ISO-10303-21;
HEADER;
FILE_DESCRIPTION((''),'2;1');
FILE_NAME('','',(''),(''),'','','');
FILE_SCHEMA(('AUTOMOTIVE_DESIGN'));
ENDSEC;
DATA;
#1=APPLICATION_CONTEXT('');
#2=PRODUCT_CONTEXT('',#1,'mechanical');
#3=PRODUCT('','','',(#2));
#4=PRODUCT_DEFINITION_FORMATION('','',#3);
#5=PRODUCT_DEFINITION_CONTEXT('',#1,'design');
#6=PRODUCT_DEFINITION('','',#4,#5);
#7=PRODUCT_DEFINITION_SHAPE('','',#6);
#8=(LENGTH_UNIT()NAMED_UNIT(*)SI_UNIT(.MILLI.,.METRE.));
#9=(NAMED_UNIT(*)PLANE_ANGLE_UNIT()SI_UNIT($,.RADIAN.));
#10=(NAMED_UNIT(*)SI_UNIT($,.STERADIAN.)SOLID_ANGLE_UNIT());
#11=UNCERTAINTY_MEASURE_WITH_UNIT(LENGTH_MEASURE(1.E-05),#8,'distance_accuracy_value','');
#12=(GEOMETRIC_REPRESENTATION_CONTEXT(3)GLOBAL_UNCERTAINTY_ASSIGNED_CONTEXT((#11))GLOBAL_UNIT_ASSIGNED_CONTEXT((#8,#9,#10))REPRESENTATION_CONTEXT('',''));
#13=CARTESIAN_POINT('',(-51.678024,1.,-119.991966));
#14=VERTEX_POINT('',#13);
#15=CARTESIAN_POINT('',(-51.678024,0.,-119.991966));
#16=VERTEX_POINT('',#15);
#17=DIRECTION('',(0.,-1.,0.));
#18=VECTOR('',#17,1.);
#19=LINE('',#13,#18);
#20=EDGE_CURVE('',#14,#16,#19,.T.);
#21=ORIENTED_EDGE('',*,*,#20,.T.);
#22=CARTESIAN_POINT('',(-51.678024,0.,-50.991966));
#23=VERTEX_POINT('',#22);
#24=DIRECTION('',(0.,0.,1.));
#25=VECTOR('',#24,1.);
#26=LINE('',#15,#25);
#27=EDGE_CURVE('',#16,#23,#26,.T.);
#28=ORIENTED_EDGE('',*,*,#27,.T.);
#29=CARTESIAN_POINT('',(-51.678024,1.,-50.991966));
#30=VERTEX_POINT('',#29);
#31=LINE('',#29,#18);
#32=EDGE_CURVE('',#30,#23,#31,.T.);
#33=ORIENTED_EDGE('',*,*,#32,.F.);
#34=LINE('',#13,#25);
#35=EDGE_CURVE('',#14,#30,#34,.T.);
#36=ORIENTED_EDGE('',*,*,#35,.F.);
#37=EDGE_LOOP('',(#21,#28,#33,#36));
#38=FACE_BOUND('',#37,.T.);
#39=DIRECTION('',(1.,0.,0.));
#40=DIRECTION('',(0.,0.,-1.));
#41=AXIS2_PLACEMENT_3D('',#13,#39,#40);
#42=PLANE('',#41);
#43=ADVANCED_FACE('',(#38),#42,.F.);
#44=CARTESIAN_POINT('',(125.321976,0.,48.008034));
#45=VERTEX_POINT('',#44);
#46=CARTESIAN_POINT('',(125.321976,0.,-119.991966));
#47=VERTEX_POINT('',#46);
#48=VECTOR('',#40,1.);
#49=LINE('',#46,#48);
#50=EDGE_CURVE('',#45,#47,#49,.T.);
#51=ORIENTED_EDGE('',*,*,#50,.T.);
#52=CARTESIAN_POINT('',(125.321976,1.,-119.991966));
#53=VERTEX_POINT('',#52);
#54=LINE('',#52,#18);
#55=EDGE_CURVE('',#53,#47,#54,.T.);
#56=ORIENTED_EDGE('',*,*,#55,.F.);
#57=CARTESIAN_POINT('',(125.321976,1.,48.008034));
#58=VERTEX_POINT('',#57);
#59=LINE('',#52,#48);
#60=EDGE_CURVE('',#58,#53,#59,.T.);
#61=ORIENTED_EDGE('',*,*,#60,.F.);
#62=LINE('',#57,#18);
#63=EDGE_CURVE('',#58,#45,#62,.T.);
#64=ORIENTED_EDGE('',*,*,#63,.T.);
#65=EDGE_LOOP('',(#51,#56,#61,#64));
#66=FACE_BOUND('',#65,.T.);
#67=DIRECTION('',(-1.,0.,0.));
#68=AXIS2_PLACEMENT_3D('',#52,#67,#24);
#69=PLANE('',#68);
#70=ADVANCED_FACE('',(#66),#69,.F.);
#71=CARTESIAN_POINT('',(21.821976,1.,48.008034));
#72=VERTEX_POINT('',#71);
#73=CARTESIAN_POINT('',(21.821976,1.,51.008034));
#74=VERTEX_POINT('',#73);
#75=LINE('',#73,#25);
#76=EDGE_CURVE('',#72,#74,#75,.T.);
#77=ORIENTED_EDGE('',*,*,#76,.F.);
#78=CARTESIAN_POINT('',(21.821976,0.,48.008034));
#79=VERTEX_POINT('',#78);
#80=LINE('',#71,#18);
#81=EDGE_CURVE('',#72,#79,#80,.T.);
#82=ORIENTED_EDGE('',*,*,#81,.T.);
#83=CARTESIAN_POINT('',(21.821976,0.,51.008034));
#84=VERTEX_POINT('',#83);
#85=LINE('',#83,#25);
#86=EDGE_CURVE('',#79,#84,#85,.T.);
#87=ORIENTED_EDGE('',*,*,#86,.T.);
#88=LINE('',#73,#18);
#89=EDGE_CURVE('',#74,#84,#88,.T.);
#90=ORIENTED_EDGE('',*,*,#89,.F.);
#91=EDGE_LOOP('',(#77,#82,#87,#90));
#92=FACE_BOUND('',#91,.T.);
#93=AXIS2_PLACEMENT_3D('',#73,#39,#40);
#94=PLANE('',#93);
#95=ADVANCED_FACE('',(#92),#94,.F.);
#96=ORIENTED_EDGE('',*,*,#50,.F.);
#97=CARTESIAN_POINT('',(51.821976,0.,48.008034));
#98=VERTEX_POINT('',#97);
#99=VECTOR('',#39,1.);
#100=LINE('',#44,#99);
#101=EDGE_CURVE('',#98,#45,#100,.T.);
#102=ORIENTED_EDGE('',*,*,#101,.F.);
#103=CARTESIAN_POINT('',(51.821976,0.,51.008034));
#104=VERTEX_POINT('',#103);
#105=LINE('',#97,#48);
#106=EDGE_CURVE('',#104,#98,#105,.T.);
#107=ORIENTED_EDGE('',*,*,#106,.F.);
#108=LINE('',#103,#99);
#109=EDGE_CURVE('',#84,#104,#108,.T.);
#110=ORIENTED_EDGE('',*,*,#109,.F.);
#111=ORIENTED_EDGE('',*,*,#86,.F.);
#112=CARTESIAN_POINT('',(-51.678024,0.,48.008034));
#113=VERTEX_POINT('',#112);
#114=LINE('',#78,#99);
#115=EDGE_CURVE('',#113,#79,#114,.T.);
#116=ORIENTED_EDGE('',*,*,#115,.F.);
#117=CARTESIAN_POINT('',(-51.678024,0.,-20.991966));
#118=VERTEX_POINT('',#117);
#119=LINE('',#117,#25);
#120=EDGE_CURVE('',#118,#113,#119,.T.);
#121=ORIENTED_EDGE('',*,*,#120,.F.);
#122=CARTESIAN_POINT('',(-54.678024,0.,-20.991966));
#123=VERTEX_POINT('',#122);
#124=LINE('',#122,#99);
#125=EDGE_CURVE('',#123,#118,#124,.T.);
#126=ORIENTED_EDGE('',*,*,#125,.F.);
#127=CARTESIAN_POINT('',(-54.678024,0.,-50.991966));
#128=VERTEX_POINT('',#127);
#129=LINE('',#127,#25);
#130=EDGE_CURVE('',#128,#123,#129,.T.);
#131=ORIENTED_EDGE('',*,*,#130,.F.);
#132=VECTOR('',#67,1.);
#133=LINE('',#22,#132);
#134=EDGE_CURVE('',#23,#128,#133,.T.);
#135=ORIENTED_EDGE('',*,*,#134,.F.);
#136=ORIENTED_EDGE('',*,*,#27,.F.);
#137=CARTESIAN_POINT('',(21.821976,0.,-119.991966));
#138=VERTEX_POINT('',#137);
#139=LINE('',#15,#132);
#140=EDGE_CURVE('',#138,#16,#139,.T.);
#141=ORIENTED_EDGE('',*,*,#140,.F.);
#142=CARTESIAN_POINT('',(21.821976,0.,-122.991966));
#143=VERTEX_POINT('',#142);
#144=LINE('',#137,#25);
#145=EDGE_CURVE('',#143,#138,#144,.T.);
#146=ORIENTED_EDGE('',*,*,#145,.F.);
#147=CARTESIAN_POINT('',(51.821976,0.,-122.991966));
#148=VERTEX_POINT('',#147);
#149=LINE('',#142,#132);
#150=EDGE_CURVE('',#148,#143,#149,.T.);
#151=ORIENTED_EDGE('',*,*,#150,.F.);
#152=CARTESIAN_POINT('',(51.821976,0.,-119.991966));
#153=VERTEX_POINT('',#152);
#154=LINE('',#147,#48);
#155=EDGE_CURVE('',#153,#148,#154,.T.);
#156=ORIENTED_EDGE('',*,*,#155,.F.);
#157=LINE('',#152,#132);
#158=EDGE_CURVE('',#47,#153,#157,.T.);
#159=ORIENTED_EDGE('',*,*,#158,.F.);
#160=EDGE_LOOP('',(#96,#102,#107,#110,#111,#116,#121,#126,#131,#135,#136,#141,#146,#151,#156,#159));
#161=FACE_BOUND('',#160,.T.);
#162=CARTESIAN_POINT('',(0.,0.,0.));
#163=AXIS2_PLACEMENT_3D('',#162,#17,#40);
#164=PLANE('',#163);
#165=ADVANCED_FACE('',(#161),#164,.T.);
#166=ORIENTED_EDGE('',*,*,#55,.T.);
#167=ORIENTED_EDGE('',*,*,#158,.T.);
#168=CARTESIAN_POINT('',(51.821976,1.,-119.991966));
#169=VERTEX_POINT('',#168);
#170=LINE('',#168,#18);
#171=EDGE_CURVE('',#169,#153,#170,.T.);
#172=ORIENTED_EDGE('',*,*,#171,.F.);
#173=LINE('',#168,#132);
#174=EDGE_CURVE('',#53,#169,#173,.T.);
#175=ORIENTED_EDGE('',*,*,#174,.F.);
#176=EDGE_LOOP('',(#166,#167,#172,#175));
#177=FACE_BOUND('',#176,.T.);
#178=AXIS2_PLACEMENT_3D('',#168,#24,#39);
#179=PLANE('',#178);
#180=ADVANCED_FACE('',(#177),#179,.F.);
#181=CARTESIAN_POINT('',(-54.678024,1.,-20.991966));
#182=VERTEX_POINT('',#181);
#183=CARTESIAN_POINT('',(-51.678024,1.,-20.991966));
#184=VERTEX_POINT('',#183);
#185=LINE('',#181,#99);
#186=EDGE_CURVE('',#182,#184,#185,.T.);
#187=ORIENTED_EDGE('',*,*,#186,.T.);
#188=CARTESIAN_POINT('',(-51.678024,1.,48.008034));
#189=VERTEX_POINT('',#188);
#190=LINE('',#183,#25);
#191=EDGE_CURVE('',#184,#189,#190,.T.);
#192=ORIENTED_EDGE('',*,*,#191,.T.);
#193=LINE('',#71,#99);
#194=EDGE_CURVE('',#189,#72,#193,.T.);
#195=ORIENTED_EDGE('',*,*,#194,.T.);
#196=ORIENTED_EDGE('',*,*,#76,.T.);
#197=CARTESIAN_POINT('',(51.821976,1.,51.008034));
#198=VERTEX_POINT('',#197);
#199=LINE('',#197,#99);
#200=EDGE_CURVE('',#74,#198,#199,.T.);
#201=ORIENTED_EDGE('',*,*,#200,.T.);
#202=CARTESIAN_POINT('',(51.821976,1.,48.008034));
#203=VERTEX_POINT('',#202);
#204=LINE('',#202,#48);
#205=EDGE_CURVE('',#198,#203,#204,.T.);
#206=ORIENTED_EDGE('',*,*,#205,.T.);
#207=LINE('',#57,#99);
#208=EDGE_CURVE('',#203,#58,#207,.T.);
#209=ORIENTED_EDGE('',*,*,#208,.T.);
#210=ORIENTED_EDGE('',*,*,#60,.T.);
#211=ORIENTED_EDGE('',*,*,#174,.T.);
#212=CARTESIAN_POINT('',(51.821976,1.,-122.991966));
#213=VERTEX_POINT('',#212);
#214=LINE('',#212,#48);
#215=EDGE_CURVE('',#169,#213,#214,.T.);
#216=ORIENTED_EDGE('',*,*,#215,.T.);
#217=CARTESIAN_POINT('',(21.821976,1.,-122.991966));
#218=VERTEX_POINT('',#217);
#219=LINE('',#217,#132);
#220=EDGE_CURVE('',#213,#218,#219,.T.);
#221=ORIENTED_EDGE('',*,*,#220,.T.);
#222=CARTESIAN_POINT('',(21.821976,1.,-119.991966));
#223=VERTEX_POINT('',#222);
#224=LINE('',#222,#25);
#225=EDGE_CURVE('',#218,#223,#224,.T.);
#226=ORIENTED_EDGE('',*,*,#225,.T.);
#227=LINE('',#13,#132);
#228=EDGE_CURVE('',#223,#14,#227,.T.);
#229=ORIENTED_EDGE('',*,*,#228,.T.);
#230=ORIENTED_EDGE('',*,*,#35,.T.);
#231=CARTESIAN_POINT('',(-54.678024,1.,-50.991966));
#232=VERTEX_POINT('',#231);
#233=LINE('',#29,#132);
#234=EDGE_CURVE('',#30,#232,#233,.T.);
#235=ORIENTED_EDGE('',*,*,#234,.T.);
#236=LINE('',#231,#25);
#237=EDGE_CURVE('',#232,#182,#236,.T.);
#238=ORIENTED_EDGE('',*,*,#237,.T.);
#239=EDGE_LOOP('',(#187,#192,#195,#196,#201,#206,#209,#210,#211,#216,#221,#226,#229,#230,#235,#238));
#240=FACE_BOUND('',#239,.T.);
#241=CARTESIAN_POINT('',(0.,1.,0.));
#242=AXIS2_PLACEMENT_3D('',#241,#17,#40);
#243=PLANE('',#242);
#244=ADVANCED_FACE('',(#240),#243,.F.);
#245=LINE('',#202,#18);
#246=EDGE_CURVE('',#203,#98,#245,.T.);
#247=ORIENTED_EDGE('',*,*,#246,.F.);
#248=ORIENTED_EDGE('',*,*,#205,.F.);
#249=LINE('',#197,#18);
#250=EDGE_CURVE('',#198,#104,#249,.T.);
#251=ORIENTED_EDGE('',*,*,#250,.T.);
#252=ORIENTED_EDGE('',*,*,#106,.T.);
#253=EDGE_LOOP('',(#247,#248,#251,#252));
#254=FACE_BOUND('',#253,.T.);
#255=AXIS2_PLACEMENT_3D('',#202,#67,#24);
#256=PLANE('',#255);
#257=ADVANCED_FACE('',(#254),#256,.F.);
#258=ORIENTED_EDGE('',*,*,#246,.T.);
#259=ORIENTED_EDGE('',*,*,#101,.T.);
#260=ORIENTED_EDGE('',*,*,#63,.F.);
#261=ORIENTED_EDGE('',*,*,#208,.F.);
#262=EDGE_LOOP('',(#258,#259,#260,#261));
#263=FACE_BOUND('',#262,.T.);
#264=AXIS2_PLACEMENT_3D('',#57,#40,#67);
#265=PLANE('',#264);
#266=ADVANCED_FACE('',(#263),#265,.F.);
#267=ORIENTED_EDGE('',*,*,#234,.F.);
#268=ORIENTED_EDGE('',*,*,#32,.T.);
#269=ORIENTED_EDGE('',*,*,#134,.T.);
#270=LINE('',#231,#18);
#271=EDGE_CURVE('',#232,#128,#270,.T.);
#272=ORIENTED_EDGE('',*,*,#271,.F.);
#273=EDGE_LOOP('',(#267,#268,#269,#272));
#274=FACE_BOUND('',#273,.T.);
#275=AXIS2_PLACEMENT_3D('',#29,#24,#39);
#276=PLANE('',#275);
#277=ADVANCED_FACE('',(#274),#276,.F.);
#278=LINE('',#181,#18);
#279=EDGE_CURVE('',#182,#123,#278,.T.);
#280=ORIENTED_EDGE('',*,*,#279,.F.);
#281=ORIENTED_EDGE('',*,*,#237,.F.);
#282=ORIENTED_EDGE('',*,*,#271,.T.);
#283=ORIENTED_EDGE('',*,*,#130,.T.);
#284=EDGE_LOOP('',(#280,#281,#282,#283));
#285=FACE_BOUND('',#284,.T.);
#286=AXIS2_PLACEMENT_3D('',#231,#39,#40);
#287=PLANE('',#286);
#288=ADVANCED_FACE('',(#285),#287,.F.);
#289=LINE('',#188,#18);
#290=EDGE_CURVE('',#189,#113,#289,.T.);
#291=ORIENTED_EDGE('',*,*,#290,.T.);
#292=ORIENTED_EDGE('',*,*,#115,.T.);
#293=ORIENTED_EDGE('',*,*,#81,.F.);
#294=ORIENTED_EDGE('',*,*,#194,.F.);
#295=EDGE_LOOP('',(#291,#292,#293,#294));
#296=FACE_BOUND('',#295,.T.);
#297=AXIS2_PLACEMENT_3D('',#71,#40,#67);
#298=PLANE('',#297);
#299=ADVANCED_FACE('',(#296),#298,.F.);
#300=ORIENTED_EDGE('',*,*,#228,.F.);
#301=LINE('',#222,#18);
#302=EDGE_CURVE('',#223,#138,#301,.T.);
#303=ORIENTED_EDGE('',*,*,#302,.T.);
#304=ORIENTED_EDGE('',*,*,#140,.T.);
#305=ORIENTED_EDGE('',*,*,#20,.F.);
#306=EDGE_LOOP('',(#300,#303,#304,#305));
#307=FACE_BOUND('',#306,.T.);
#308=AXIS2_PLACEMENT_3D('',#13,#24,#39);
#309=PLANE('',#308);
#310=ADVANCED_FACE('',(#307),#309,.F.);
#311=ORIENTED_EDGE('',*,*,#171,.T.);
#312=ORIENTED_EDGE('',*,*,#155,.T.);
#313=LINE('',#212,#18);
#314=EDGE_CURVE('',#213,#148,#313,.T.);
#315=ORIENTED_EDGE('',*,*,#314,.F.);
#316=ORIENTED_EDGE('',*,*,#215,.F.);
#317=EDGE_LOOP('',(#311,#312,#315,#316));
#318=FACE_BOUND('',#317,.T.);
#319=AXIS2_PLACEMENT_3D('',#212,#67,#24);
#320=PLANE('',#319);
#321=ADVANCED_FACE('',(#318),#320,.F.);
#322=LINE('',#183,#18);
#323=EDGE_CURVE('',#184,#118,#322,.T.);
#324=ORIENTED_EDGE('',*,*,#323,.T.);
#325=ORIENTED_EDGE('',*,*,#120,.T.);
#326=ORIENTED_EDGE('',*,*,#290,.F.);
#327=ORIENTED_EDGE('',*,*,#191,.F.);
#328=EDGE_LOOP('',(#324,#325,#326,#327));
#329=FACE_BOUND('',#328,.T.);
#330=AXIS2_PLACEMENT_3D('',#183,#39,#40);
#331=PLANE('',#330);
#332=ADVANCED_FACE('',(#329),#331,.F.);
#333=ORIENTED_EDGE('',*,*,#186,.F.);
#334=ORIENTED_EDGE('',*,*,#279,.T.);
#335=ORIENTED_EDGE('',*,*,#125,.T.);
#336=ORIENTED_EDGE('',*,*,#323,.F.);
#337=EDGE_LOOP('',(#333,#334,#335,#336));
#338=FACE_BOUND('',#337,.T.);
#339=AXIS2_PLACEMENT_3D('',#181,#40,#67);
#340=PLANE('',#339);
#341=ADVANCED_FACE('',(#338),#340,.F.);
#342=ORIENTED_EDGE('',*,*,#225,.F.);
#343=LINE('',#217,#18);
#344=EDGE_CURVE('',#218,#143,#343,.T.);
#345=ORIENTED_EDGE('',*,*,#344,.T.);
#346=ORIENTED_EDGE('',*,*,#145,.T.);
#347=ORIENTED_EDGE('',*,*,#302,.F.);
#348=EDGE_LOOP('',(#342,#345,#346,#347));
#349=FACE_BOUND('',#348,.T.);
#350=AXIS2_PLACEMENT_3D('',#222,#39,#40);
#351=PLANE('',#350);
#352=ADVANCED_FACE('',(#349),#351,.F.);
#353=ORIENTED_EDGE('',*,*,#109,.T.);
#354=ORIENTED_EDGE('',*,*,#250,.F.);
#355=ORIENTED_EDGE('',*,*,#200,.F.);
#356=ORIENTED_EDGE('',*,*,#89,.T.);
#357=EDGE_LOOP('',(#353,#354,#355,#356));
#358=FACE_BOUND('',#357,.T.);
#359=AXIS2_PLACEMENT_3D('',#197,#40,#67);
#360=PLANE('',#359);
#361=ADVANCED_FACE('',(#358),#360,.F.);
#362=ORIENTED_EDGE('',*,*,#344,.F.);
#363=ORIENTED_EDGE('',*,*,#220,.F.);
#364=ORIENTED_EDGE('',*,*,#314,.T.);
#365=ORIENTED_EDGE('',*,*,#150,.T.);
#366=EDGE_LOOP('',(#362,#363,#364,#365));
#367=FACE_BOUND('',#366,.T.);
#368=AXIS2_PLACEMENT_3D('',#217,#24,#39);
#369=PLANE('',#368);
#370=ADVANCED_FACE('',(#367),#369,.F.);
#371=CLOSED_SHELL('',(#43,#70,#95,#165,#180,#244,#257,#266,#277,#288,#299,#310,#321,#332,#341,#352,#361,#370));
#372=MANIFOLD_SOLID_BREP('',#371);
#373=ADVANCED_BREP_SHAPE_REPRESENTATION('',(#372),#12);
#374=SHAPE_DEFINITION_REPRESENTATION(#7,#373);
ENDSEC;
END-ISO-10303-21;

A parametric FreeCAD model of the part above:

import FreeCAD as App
import Part
import Sketcher

V = App.Vector

doc = App.newDocument("Part")
body = doc.addObject("PartDesign::Body", "Body")

# Sketch on XZ plane
sketch1 = doc.addObject("Sketcher::SketchObject", "Sketch")
body.addObject(sketch1)
sketch1.AttachmentSupport = (doc.XZ_Plane, [""])
sketch1.MapMode = "FlatFace"
sketch1.addGeometry(Part.LineSegment(V(21.8, -120, 0), V(-51.7, -120, 0)), False)
sketch1.addGeometry(Part.LineSegment(V(-51.7, -120, 0), V(-51.7, -51, 0)), False)
sketch1.addGeometry(Part.LineSegment(V(-51.7, -51, 0), V(-54.7, -51, 0)), False)
sketch1.addGeometry(Part.LineSegment(V(-54.7, -51, 0), V(-54.7, -21, 0)), False)
sketch1.addGeometry(Part.LineSegment(V(-54.7, -21, 0), V(-51.7, -21, 0)), False)
sketch1.addGeometry(Part.LineSegment(V(-51.7, -21, 0), V(-51.7, 48, 0)), False)
sketch1.addGeometry(Part.LineSegment(V(-51.7, 48, 0), V(21.8, 48, 0)), False)
sketch1.addGeometry(Part.LineSegment(V(21.8, 48, 0), V(21.8, 51, 0)), False)
sketch1.addGeometry(Part.LineSegment(V(21.8, 51, 0), V(51.8, 51, 0)), False)
sketch1.addGeometry(Part.LineSegment(V(51.8, 51, 0), V(51.8, 48, 0)), False)
sketch1.addGeometry(Part.LineSegment(V(51.8, 48, 0), V(125.3, 48, 0)), False)
sketch1.addGeometry(Part.LineSegment(V(125.3, 48, 0), V(125.3, -120, 0)), False)
sketch1.addGeometry(Part.LineSegment(V(125.3, -120, 0), V(51.8, -120, 0)), False)
sketch1.addGeometry(Part.LineSegment(V(51.8, -120, 0), V(51.8, -123, 0)), False)
sketch1.addGeometry(Part.LineSegment(V(51.8, -123, 0), V(21.8, -123, 0)), False)
sketch1.addGeometry(Part.LineSegment(V(21.8, -123, 0), V(21.8, -120, 0)), False)
sketch1.addConstraint(Sketcher.Constraint("Coincident", 0, 2, 1, 1))
sketch1.addConstraint(Sketcher.Constraint("Coincident", 1, 2, 2, 1))
sketch1.addConstraint(Sketcher.Constraint("Coincident", 2, 2, 3, 1))
sketch1.addConstraint(Sketcher.Constraint("Coincident", 3, 2, 4, 1))
sketch1.addConstraint(Sketcher.Constraint("Coincident", 4, 2, 5, 1))
sketch1.addConstraint(Sketcher.Constraint("Coincident", 5, 2, 6, 1))
sketch1.addConstraint(Sketcher.Constraint("Coincident", 6, 2, 7, 1))
sketch1.addConstraint(Sketcher.Constraint("Coincident", 7, 2, 8, 1))
sketch1.addConstraint(Sketcher.Constraint("Coincident", 8, 2, 9, 1))
sketch1.addConstraint(Sketcher.Constraint("Coincident", 9, 2, 10, 1))
sketch1.addConstraint(Sketcher.Constraint("Coincident", 10, 2, 11, 1))
sketch1.addConstraint(Sketcher.Constraint("Coincident", 11, 2, 12, 1))
sketch1.addConstraint(Sketcher.Constraint("Coincident", 12, 2, 13, 1))
sketch1.addConstraint(Sketcher.Constraint("Coincident", 13, 2, 14, 1))
sketch1.addConstraint(Sketcher.Constraint("Coincident", 14, 2, 15, 1))
sketch1.addConstraint(Sketcher.Constraint("Coincident", 15, 2, 0, 1))
sketch1.addConstraint(Sketcher.Constraint("Horizontal", 0))
sketch1.addConstraint(Sketcher.Constraint("Vertical", 1))
sketch1.addConstraint(Sketcher.Constraint("Horizontal", 2))
sketch1.addConstraint(Sketcher.Constraint("Vertical", 3))
sketch1.addConstraint(Sketcher.Constraint("Horizontal", 4))
sketch1.addConstraint(Sketcher.Constraint("Vertical", 5))
sketch1.addConstraint(Sketcher.Constraint("Horizontal", 6))
sketch1.addConstraint(Sketcher.Constraint("Vertical", 7))
sketch1.addConstraint(Sketcher.Constraint("Horizontal", 8))
sketch1.addConstraint(Sketcher.Constraint("Vertical", 9))
sketch1.addConstraint(Sketcher.Constraint("Horizontal", 10))
sketch1.addConstraint(Sketcher.Constraint("Vertical", 11))
sketch1.addConstraint(Sketcher.Constraint("Horizontal", 12))
sketch1.addConstraint(Sketcher.Constraint("Vertical", 13))
sketch1.addConstraint(Sketcher.Constraint("Horizontal", 14))
sketch1.addConstraint(Sketcher.Constraint("Vertical", 15))
sketch1.addConstraint(Sketcher.Constraint("Horizontal", 6, 2, 9, 2))
sketch1.addConstraint(Sketcher.Constraint("Horizontal", 0, 2, 11, 2))
sketch1.addConstraint(Sketcher.Constraint("Vertical", 1, 2, 4, 2))
sketch1.addConstraint(Sketcher.Constraint("Vertical", 9, 2, 12, 2))
sketch1.addConstraint(Sketcher.Constraint("Vertical", 7, 2, 14, 2))
sketch1.addConstraint(Sketcher.Constraint("Equal", 6, 10))
sketch1.addConstraint(Sketcher.Constraint("Equal", 14, 3))
sketch1.addConstraint(Sketcher.Constraint("Equal", 1, 5))
sketch1.addConstraint(Sketcher.Constraint("Equal", 4, 7))
sketch1.addConstraint(Sketcher.Constraint("Equal", 9, 13))
sketch1.addConstraint(Sketcher.Constraint("DistanceX", 2, 2, 2, 1, 3.0))
sketch1.addConstraint(Sketcher.Constraint("DistanceX", 8, 1, 8, 2, 30.0))
sketch1.addConstraint(Sketcher.Constraint("DistanceY", 1, 1, 1, 2, 69.0))
sketch1.addConstraint(Sketcher.Constraint("DistanceX", 0, 2, 0, 1, 73.5))
sketch1.addConstraint(Sketcher.Constraint("DistanceX", 0, 2, -1, 1, 51.678024))
sketch1.addConstraint(Sketcher.Constraint("DistanceY", 0, 2, -1, 1, 119.991966))
pad1 = doc.addObject("PartDesign::Pad", "Pad")
body.addObject(pad1)
pad1.Profile = sketch1
pad1.Length = 1
pad1.Reversed = True

doc.recompute()
